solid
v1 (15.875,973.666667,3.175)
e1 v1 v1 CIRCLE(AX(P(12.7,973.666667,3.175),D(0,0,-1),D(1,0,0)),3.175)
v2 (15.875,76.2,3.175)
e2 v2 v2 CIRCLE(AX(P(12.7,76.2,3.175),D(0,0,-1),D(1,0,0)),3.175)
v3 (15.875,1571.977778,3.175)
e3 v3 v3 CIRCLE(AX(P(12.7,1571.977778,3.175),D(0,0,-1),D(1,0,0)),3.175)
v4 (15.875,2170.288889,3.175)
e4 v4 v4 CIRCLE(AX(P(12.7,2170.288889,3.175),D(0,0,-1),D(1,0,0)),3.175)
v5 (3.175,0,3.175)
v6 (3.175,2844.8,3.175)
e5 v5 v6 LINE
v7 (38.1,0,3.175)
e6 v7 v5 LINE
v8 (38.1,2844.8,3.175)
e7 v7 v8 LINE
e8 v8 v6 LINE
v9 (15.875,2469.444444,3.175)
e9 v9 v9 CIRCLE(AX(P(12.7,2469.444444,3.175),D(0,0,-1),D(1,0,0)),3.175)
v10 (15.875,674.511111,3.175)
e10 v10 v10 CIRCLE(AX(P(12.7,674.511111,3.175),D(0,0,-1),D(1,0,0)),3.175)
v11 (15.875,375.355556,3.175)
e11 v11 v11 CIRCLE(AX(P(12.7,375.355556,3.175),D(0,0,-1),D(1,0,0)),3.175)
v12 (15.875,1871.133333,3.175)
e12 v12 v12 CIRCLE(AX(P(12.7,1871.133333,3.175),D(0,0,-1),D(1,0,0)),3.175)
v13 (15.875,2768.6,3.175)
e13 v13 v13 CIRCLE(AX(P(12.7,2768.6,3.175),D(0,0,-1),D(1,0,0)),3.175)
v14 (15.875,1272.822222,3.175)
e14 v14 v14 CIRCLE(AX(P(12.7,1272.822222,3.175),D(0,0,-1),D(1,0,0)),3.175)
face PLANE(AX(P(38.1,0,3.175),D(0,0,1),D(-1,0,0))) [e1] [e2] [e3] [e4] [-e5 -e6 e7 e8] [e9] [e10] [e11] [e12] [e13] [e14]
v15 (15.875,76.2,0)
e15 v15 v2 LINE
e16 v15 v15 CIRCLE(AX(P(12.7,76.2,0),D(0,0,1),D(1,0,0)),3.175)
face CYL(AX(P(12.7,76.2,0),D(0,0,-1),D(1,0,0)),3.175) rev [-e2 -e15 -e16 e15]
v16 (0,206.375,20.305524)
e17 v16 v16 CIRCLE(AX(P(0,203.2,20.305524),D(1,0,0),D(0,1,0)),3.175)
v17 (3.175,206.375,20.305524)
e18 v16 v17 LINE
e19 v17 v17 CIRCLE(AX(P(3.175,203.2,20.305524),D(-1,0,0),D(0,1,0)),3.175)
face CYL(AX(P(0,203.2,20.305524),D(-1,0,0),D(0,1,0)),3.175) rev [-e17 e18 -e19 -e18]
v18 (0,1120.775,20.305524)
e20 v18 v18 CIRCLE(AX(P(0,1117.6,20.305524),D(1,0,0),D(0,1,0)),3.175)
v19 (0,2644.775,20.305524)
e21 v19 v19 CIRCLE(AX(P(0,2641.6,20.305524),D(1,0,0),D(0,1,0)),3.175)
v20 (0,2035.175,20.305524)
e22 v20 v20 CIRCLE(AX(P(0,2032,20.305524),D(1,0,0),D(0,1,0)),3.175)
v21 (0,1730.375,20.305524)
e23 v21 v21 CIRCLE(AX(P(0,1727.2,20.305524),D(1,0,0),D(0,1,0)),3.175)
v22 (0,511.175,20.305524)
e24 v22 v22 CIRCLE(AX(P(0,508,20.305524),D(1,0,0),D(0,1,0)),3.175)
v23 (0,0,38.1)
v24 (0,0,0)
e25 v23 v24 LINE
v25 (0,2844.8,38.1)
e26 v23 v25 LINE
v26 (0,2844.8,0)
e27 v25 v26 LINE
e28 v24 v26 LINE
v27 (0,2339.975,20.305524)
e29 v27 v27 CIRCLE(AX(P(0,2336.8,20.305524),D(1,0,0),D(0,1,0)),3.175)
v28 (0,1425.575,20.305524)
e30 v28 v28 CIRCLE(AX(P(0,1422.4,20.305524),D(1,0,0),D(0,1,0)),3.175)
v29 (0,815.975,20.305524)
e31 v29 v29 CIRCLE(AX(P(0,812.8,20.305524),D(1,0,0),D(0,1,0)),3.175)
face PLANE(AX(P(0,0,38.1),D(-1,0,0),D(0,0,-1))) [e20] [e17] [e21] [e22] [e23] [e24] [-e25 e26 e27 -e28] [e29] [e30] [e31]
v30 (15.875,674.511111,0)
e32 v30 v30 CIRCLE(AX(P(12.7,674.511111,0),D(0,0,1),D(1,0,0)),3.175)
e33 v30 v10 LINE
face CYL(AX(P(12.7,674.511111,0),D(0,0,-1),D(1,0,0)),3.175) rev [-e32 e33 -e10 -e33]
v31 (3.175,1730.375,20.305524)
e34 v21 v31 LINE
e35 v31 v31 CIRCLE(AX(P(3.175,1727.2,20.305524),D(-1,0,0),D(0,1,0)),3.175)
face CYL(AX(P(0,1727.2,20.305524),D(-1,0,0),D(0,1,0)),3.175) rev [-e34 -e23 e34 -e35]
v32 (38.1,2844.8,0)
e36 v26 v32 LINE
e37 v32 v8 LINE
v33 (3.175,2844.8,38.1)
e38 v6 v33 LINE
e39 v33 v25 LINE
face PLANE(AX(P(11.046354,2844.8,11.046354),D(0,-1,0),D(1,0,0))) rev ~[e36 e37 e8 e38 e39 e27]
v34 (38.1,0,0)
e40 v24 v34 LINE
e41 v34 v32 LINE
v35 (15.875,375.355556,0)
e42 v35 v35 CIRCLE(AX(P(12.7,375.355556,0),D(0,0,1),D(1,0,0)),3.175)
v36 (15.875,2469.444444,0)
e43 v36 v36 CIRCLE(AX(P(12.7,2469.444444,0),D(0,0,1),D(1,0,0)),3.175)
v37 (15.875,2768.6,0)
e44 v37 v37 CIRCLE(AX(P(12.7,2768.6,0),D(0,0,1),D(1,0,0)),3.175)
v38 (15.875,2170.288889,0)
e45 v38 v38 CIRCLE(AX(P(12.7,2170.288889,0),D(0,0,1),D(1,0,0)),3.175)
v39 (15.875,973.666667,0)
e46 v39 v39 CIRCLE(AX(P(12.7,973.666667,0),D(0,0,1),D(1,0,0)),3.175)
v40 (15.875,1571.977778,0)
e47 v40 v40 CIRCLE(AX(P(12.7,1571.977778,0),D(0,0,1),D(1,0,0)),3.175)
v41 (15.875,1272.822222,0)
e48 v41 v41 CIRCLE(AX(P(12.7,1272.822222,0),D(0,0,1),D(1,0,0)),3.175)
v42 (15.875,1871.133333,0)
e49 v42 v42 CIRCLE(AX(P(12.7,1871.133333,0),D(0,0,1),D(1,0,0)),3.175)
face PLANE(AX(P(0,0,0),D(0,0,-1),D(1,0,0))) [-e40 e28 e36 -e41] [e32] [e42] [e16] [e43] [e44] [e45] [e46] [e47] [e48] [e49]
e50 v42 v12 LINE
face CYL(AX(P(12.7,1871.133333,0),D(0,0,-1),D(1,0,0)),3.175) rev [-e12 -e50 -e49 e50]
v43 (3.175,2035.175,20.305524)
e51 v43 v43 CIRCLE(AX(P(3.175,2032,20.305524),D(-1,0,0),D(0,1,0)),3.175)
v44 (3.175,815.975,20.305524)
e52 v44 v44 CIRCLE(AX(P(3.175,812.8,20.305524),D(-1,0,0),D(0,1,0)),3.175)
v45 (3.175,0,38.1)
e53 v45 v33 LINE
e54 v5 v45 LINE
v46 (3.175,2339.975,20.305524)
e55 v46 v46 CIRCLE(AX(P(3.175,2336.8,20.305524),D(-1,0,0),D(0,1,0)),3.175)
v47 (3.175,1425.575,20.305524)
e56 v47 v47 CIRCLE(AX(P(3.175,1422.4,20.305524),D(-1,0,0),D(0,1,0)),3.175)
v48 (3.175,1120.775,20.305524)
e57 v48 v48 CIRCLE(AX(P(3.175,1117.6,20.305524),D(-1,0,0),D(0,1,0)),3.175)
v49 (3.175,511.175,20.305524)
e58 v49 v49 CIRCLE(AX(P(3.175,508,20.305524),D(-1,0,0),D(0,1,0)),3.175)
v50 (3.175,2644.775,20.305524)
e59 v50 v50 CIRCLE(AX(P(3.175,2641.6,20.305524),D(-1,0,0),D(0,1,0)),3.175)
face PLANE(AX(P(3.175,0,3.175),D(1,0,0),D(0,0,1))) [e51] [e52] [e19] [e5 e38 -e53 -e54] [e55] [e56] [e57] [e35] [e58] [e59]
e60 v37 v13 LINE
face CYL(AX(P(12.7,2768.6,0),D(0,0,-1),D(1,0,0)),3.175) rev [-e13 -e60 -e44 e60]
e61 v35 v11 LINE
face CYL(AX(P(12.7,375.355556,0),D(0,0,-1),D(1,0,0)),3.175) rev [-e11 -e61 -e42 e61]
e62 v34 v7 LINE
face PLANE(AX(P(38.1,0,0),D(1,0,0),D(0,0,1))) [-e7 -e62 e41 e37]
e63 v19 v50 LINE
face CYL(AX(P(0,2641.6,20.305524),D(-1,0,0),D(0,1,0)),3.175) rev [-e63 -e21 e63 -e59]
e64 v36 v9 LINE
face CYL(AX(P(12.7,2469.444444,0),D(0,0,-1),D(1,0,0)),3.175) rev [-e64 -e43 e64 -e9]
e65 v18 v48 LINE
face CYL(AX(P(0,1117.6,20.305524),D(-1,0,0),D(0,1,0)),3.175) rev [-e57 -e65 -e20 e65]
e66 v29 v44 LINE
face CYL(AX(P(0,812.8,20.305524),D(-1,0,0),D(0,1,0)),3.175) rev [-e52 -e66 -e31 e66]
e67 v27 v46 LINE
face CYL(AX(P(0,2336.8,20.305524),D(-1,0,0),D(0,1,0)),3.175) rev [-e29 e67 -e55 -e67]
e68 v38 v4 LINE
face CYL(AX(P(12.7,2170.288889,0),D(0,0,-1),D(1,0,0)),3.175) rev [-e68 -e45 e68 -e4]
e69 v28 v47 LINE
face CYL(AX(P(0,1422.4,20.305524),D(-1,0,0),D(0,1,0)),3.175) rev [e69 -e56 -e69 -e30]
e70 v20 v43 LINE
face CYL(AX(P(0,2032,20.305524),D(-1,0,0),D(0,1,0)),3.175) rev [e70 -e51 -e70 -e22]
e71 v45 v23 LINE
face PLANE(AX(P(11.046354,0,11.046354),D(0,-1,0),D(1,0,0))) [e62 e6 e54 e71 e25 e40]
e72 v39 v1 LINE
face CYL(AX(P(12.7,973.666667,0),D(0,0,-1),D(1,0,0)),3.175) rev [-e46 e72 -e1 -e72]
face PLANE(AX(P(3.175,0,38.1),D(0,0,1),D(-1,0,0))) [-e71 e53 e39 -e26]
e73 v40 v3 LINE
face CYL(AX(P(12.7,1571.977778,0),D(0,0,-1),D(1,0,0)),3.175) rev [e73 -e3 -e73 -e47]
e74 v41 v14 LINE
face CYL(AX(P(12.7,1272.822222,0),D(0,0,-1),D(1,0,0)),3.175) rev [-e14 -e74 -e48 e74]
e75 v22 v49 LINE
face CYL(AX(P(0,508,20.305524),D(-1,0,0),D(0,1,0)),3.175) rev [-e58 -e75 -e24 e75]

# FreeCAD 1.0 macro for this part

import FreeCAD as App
import Part
import Sketcher
Q = App.Units.Quantity

doc = App.newDocument("Part")
body = doc.addObject("PartDesign::Body", "Body")

sketch1 = body.newObject("Sketcher::SketchObject", "Sketch")
sketch1.AttachmentSupport = (doc.getObject("XZ_Plane"), [""])
sketch1.MapMode = "FlatFace"
sketch1.addGeometry(Part.LineSegment(App.Vector(0, 38.1, 0), App.Vector(0, 0, 0)), False)
sketch1.addGeometry(Part.LineSegment(App.Vector(0, 0, 0), App.Vector(38.1, 0, 0)), False)
sketch1.addGeometry(Part.LineSegment(App.Vector(38.1, 0, 0), App.Vector(38.1, 3.2, 0)), False)
sketch1.addGeometry(Part.LineSegment(App.Vector(38.1, 3.2, 0), App.Vector(3.2, 3.2, 0)), False)
sketch1.addGeometry(Part.LineSegment(App.Vector(3.2, 3.2, 0), App.Vector(3.2, 38.1, 0)), False)
sketch1.addGeometry(Part.LineSegment(App.Vector(3.2, 38.1, 0), App.Vector(0, 38.1, 0)), False)
sketch1.addConstraint(Sketcher.Constraint("Coincident", 0, 2, 1, 1))
sketch1.addConstraint(Sketcher.Constraint("Coincident", 1, 2, 2, 1))
sketch1.addConstraint(Sketcher.Constraint("Coincident", 2, 2, 3, 1))
sketch1.addConstraint(Sketcher.Constraint("Coincident", 3, 2, 4, 1))
sketch1.addConstraint(Sketcher.Constraint("Coincident", 4, 2, 5, 1))
sketch1.addConstraint(Sketcher.Constraint("Coincident", 5, 2, 0, 1))
sketch1.addConstraint(Sketcher.Constraint("Vertical", 0))
sketch1.addConstraint(Sketcher.Constraint("Horizontal", 1))
sketch1.addConstraint(Sketcher.Constraint("Vertical", 2))
sketch1.addConstraint(Sketcher.Constraint("Horizontal", 3))
sketch1.addConstraint(Sketcher.Constraint("Vertical", 4))
sketch1.addConstraint(Sketcher.Constraint("Horizontal", 5))
sketch1.addConstraint(Sketcher.Constraint("Coincident", 0, 2, -1, 1))
sketch1.addConstraint(Sketcher.Constraint("Equal", 1, 0))
sketch1.addConstraint(Sketcher.Constraint("Equal", 5, 2))
sketch1.addConstraint(Sketcher.Constraint("DistanceX", 1, 1, 1, 2, Q("1.5 in")))
sketch1.addConstraint(Sketcher.Constraint("DistanceX", 3, 2, 3, 1, Q("1.375 in")))
pad1 = body.newObject("PartDesign::Pad", "Pad")
pad1.Profile = sketch1
pad1.Length = Q("112 in")
pad1.Reversed = True

sketch2 = body.newObject("Sketcher::SketchObject", "Sketch001")
sketch2.AttachmentSupport = (doc.getObject("XY_Plane"), [""])
sketch2.MapMode = "FlatFace"
sketch2.addGeometry(Part.Circle(App.Vector(12.7, 76.2, 0), App.Vector(0, 0, 1), 3.2), False)
sketch2.addGeometry(Part.Circle(App.Vector(12.7, 375.4, 0), App.Vector(0, 0, 1), 3.2), False)
sketch2.addGeometry(Part.Circle(App.Vector(12.7, 674.5, 0), App.Vector(0, 0, 1), 3.2), False)
sketch2.addGeometry(Part.Circle(App.Vector(12.7, 973.7, 0), App.Vector(0, 0, 1), 3.2), False)
sketch2.addGeometry(Part.Circle(App.Vector(12.7, 1272.8, 0), App.Vector(0, 0, 1), 3.2), False)
sketch2.addGeometry(Part.Circle(App.Vector(12.7, 1572, 0), App.Vector(0, 0, 1), 3.2), False)
sketch2.addGeometry(Part.Circle(App.Vector(12.7, 1871.1, 0), App.Vector(0, 0, 1), 3.2), False)
sketch2.addGeometry(Part.Circle(App.Vector(12.7, 2170.3, 0), App.Vector(0, 0, 1), 3.2), False)
sketch2.addGeometry(Part.Circle(App.Vector(12.7, 2469.4, 0), App.Vector(0, 0, 1), 3.2), False)
sketch2.addGeometry(Part.Circle(App.Vector(12.7, 2768.6, 0), App.Vector(0, 0, 1), 3.2), False)
sketch2.addConstraint(Sketcher.Constraint("Equal", 0, 1))
sketch2.addConstraint(Sketcher.Constraint("Equal", 1, 2))
sketch2.addConstraint(Sketcher.Constraint("Equal", 2, 3))
sketch2.addConstraint(Sketcher.Constraint("Equal", 3, 4))
sketch2.addConstraint(Sketcher.Constraint("Equal", 4, 5))
sketch2.addConstraint(Sketcher.Constraint("Equal", 5, 6))
sketch2.addConstraint(Sketcher.Constraint("Equal", 6, 7))
sketch2.addConstraint(Sketcher.Constraint("Equal", 7, 8))
sketch2.addConstraint(Sketcher.Constraint("Equal", 8, 9))
sketch2.addConstraint(Sketcher.Constraint("Vertical", 0, 3, 1, 3))
sketch2.addConstraint(Sketcher.Constraint("Vertical", 1, 3, 2, 3))
sketch2.addConstraint(Sketcher.Constraint("Vertical", 2, 3, 3, 3))
sketch2.addConstraint(Sketcher.Constraint("Vertical", 3, 3, 4, 3))
sketch2.addConstraint(Sketcher.Constraint("Vertical", 4, 3, 5, 3))
sketch2.addConstraint(Sketcher.Constraint("Vertical", 5, 3, 6, 3))
sketch2.addConstraint(Sketcher.Constraint("Vertical", 6, 3, 7, 3))
sketch2.addConstraint(Sketcher.Constraint("Vertical", 7, 3, 8, 3))
sketch2.addConstraint(Sketcher.Constraint("Vertical", 8, 3, 9, 3))
sketch2.addConstraint(Sketcher.Constraint("Diameter", 0, Q("0.25 in")))
sketch2.addConstraint(Sketcher.Constraint("DistanceY", -1, 1, 0, 3, Q("3 in")))
sketch2.addConstraint(Sketcher.Constraint("DistanceY", -1, 1, 9, 3, Q("109 in")))
sketch2.addConstraint(Sketcher.Constraint("DistanceX", -1, 1, 0, 3, Q("0.5 in")))
sketch2.addConstraint(Sketcher.Constraint("DistanceY", -1, 1, 2, 3, Q("674.511111 mm")))
sketch2.addConstraint(Sketcher.Constraint("DistanceY", -1, 1, 4, 3, Q("1272.822222 mm")))
sketch2.addConstraint(Sketcher.Constraint("DistanceY", -1, 1, 5, 3, Q("1571.977778 mm")))
sketch2.addConstraint(Sketcher.Constraint("DistanceY", -1, 1, 7, 3, Q("2170.288889 mm")))
sketch2.addConstraint(Sketcher.Constraint("DistanceY", 1, 3, 3, 3, Q("598.311111 mm")))
sketch2.addConstraint(Sketcher.Constraint("DistanceY", 3, 3, 5, 3, Q("598.311111 mm")))
sketch2.addConstraint(Sketcher.Constraint("DistanceY", 4, 3, 6, 3, Q("598.311111 mm")))
sketch2.addConstraint(Sketcher.Constraint("DistanceY", 6, 3, 8, 3, Q("598.311111 mm")))
pocket1 = body.newObject("PartDesign::Pocket", "Pocket")
pocket1.Profile = sketch2
pocket1.Length = Q("1 in")
pocket1.Reversed = True

sketch3 = body.newObject("Sketcher::SketchObject", "Sketch002")
sketch3.AttachmentSupport = (doc.getObject("YZ_Plane"), [""])
sketch3.MapMode = "FlatFace"
sketch3.addGeometry(Part.Circle(App.Vector(203.2, 20.3, 0), App.Vector(0, 0, 1), 3.2), False)
sketch3.addGeometry(Part.Circle(App.Vector(508, 20.3, 0), App.Vector(0, 0, 1), 3.2), False)
sketch3.addGeometry(Part.Circle(App.Vector(812.8, 20.3, 0), App.Vector(0, 0, 1), 3.2), False)
sketch3.addGeometry(Part.Circle(App.Vector(1117.6, 20.3, 0), App.Vector(0, 0, 1), 3.2), False)
sketch3.addGeometry(Part.Circle(App.Vector(1422.4, 20.3, 0), App.Vector(0, 0, 1), 3.2), False)
sketch3.addGeometry(Part.Circle(App.Vector(1727.2, 20.3, 0), App.Vector(0, 0, 1), 3.2), False)
sketch3.addGeometry(Part.Circle(App.Vector(2032, 20.3, 0), App.Vector(0, 0, 1), 3.2), False)
sketch3.addGeometry(Part.Circle(App.Vector(2336.8, 20.3, 0), App.Vector(0, 0, 1), 3.2), False)
sketch3.addGeometry(Part.Circle(App.Vector(2641.6, 20.3, 0), App.Vector(0, 0, 1), 3.2), False)
sketch3.addConstraint(Sketcher.Constraint("Equal", 0, 1))
sketch3.addConstraint(Sketcher.Constraint("Equal", 1, 2))
sketch3.addConstraint(Sketcher.Constraint("Equal", 2, 3))
sketch3.addConstraint(Sketcher.Constraint("Equal", 3, 4))
sketch3.addConstraint(Sketcher.Constraint("Equal", 4, 5))
sketch3.addConstraint(Sketcher.Constraint("Equal", 5, 6))
sketch3.addConstraint(Sketcher.Constraint("Equal", 6, 7))
sketch3.addConstraint(Sketcher.Constraint("Equal", 7, 8))
sketch3.addConstraint(Sketcher.Constraint("Horizontal", 0, 3, 1, 3))
sketch3.addConstraint(Sketcher.Constraint("Horizontal", 1, 3, 2, 3))
sketch3.addConstraint(Sketcher.Constraint("Horizontal", 2, 3, 3, 3))
sketch3.addConstraint(Sketcher.Constraint("Horizontal", 3, 3, 4, 3))
sketch3.addConstraint(Sketcher.Constraint("Horizontal", 4, 3, 5, 3))
sketch3.addConstraint(Sketcher.Constraint("Horizontal", 5, 3, 6, 3))
sketch3.addConstraint(Sketcher.Constraint("Horizontal", 6, 3, 7, 3))
sketch3.addConstraint(Sketcher.Constraint("Horizontal", 7, 3, 8, 3))
sketch3.addConstraint(Sketcher.Constraint("Diameter", 0, Q("0.25 in")))
sketch3.addConstraint(Sketcher.Constraint("DistanceX", -1, 1, 0, 3, Q("8 in")))
sketch3.addConstraint(Sketcher.Constraint("DistanceX", -1, 1, 1, 3, Q("20 in")))
sketch3.addConstraint(Sketcher.Constraint("DistanceX", -1, 1, 2, 3, Q("32 in")))
sketch3.addConstraint(Sketcher.Constraint("DistanceX", -1, 1, 3, 3, Q("44 in")))
sketch3.addConstraint(Sketcher.Constraint("DistanceX", -1, 1, 4, 3, Q("56 in")))
sketch3.addConstraint(Sketcher.Constraint("DistanceX", -1, 1, 5, 3, Q("68 in")))
sketch3.addConstraint(Sketcher.Constraint("DistanceX", -1, 1, 6, 3, Q("80 in")))
sketch3.addConstraint(Sketcher.Constraint("DistanceX", -1, 1, 7, 3, Q("92 in")))
sketch3.addConstraint(Sketcher.Constraint("DistanceX", -1, 1, 8, 3, Q("104 in")))
sketch3.addConstraint(Sketcher.Constraint("DistanceY", -1, 1, 0, 3, Q("20.305524 mm")))
pocket2 = body.newObject("PartDesign::Pocket", "Pocket001")
pocket2.Profile = sketch3
pocket2.Length = Q("1 in")
pocket2.Reversed = True

doc.recompute()
